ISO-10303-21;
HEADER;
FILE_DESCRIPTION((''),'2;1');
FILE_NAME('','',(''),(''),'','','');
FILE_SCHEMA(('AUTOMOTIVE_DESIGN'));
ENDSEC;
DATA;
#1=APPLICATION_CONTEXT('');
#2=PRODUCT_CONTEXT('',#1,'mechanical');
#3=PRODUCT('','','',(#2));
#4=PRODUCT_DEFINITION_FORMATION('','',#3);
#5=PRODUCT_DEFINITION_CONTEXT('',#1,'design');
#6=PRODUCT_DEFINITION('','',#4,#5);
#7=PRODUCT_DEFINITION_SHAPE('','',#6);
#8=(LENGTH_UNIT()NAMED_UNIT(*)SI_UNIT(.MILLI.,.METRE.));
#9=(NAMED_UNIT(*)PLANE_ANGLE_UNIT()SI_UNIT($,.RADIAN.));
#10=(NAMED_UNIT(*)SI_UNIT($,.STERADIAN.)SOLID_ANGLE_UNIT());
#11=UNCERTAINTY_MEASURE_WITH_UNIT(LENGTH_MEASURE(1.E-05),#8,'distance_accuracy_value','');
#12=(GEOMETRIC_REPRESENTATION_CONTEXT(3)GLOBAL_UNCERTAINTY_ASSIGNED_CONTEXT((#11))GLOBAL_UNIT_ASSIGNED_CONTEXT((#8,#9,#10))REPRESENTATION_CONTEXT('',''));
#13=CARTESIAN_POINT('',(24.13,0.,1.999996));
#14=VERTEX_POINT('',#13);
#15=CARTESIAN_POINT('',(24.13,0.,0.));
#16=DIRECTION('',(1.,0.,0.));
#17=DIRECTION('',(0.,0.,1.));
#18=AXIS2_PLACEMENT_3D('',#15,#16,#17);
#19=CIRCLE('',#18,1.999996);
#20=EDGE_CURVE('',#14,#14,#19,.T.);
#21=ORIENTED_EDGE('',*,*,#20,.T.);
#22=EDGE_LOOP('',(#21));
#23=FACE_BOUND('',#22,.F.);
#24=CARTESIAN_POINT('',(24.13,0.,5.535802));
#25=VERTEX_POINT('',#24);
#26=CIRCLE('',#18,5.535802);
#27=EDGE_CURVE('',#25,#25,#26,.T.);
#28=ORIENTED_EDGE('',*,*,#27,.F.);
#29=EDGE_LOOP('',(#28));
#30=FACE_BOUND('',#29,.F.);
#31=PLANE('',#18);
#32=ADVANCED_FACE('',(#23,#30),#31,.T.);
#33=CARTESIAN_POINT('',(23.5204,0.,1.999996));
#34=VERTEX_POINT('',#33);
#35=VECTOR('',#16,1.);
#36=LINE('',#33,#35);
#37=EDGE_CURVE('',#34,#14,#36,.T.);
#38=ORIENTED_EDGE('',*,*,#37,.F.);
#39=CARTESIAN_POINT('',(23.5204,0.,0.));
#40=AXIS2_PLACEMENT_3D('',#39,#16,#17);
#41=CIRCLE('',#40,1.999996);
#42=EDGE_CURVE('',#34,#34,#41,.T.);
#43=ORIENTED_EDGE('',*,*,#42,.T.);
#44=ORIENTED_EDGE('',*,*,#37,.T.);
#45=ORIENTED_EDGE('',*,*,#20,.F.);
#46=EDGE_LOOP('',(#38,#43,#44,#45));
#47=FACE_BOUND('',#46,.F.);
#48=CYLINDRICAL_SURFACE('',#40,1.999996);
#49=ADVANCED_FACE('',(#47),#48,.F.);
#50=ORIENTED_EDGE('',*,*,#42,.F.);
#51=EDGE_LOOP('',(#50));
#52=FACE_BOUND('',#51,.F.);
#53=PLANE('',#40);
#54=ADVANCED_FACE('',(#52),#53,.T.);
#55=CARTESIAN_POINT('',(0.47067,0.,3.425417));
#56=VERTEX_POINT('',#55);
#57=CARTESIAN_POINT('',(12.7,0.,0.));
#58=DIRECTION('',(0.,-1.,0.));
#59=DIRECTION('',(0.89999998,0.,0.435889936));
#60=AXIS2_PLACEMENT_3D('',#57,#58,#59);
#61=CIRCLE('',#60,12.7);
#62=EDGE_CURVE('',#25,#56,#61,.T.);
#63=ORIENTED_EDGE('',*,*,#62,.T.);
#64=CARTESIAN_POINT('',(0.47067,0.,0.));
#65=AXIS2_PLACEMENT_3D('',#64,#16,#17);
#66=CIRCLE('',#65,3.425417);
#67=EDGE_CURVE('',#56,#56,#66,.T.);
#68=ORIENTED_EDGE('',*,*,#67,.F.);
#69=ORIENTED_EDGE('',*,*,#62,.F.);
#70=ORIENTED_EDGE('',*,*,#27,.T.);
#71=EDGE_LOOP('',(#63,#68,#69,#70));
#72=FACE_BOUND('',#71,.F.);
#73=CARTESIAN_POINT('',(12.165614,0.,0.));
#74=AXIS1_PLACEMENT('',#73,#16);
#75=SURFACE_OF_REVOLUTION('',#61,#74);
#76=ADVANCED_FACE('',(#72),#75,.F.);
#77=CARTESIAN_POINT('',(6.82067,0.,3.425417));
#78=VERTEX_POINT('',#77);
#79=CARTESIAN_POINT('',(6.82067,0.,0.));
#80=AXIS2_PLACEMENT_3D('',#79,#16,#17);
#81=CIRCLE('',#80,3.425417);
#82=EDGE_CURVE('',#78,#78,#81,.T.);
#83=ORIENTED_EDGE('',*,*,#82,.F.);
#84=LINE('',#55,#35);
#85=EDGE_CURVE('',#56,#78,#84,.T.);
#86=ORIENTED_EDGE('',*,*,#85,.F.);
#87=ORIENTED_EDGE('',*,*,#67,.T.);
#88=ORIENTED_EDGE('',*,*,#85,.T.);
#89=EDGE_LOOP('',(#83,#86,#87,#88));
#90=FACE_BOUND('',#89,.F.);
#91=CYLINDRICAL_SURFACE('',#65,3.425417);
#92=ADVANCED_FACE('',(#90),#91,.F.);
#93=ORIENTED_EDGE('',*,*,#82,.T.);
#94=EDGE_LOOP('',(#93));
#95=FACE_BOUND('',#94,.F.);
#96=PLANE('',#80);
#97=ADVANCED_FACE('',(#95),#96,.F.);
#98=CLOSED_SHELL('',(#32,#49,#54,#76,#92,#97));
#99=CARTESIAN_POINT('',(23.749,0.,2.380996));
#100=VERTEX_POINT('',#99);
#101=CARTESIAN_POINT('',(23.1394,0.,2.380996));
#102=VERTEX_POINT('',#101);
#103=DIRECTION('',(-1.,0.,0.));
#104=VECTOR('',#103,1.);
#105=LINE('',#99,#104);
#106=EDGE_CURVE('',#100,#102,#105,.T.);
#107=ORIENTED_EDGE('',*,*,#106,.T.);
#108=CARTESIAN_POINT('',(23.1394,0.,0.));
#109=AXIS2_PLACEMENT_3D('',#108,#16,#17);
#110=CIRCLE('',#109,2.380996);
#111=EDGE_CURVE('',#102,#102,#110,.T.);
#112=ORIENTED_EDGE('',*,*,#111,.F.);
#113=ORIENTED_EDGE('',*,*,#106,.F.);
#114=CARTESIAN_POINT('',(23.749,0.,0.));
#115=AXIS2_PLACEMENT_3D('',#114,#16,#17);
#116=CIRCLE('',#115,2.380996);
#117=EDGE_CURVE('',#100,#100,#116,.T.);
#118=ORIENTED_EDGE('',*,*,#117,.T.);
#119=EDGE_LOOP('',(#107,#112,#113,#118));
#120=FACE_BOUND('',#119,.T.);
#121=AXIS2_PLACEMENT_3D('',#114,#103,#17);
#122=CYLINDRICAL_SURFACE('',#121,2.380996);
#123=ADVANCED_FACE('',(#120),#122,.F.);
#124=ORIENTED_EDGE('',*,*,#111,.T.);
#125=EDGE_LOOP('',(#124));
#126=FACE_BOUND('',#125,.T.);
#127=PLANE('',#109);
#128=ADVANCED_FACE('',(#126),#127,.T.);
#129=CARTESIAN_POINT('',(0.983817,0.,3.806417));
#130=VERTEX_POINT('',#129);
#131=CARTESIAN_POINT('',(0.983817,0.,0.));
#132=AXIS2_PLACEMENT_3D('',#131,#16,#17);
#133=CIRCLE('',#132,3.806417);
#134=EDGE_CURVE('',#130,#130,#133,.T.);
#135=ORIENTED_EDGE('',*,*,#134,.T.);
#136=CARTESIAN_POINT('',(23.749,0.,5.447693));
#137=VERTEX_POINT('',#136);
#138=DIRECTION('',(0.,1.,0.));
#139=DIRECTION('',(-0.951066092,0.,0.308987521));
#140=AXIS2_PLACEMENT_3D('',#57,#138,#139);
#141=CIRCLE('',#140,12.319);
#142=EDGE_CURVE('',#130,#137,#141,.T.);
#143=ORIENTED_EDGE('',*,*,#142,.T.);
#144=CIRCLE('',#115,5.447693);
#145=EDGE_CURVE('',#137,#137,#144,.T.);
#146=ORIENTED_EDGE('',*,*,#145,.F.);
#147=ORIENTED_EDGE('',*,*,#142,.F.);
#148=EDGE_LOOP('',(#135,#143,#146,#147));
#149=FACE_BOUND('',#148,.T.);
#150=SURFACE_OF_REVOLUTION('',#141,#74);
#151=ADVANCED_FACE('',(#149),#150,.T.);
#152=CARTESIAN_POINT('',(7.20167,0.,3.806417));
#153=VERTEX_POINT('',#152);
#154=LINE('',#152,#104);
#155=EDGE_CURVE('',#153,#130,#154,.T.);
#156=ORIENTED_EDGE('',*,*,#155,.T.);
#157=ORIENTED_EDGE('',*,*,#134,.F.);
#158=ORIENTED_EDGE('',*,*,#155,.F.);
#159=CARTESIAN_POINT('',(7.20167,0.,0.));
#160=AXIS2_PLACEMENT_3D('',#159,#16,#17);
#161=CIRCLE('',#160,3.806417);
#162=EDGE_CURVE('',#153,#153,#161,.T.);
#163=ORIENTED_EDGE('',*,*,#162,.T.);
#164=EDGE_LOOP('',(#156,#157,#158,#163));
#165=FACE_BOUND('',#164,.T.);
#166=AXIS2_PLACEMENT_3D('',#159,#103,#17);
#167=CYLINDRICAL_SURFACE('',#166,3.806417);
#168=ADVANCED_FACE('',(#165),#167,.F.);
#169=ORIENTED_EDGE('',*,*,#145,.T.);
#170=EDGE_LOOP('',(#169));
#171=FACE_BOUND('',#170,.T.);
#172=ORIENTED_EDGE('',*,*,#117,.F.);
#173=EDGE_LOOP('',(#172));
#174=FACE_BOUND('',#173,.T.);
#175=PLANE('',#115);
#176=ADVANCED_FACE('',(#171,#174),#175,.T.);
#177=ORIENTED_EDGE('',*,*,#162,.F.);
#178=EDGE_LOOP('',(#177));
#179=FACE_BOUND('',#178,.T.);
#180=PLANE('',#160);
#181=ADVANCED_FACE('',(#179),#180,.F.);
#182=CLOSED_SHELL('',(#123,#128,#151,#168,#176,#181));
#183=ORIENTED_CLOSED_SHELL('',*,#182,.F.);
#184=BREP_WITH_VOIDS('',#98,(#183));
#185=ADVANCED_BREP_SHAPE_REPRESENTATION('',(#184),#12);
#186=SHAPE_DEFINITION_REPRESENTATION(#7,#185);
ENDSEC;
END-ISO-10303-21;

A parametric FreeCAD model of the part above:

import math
import FreeCAD as App
import Part
import Sketcher
Q = App.Units.Quantity

doc = App.newDocument("Part")
body = doc.addObject("PartDesign::Body", "Body")

# Sketch on XZ plane
sketch1 = body.newObject("Sketcher::SketchObject", "Sketch")
sketch1.AttachmentSupport = (doc.getObject("XZ_Plane"), [""])
sketch1.MapMode = "FlatFace"
sketch1.addGeometry([
    Part.LineSegment(App.Vector(23.52, 2, 0), App.Vector(24.13, 2, 0)),  # 0
    Part.LineSegment(App.Vector(24.13, 2, 0), App.Vector(24.13, 5.54, 0)),  # 1
    Part.ArcOfCircle(Part.Circle(App.Vector(12.7, 0, 0), App.Vector(0, 0, 1), 12.7), math.radians(26), math.radians(164)),  # 2
    Part.LineSegment(App.Vector(0.47, 3.43, 0), App.Vector(6.82, 3.43, 0)),  # 3
    Part.LineSegment(App.Vector(6.82, 3.43, 0), App.Vector(6.82, 0, 0)),  # 4
    Part.LineSegment(App.Vector(6.82, 0, 0), App.Vector(7.2, 0, 0)),  # 5
    Part.LineSegment(App.Vector(7.2, 0, 0), App.Vector(7.2, 3.81, 0)),  # 6
    Part.LineSegment(App.Vector(7.2, 3.81, 0), App.Vector(0.98, 3.81, 0)),  # 7
    Part.ArcOfCircle(Part.Circle(App.Vector(12.7, 0, 0), App.Vector(0, 0, 1), 12.32), math.radians(26), math.radians(162)),  # 8
    Part.LineSegment(App.Vector(23.75, 5.45, 0), App.Vector(23.75, 2.38, 0)),  # 9
    Part.LineSegment(App.Vector(23.75, 2.38, 0), App.Vector(23.14, 2.38, 0)),  # 10
    Part.LineSegment(App.Vector(23.14, 2.38, 0), App.Vector(23.14, 0, 0)),  # 11
    Part.LineSegment(App.Vector(23.14, 0, 0), App.Vector(23.52, 0, 0)),  # 12
    Part.LineSegment(App.Vector(23.52, 0, 0), App.Vector(23.52, 2, 0)),  # 13
], False)
sketch1.addConstraint([
    Sketcher.Constraint("Coincident", 0, 2, 1, 1),
    Sketcher.Constraint("Coincident", 1, 2, 2, 1),
    Sketcher.Constraint("Coincident", 2, 2, 3, 1),
    Sketcher.Constraint("Coincident", 3, 2, 4, 1),
    Sketcher.Constraint("Coincident", 4, 2, 5, 1),
    Sketcher.Constraint("Coincident", 5, 2, 6, 1),
    Sketcher.Constraint("Coincident", 6, 2, 7, 1),
    Sketcher.Constraint("Coincident", 7, 2, 8, 2),
    Sketcher.Constraint("Coincident", 8, 1, 9, 1),
    Sketcher.Constraint("Coincident", 9, 2, 10, 1),
    Sketcher.Constraint("Coincident", 10, 2, 11, 1),
    Sketcher.Constraint("Coincident", 11, 2, 12, 1),
    Sketcher.Constraint("Coincident", 12, 2, 13, 1),
    Sketcher.Constraint("Coincident", 13, 2, 0, 1),
    Sketcher.Constraint("Horizontal", 0),
    Sketcher.Constraint("Vertical", 1),
    Sketcher.Constraint("Horizontal", 3),
    Sketcher.Constraint("Vertical", 4),
    Sketcher.Constraint("Horizontal", 5),
    Sketcher.Constraint("Vertical", 6),
    Sketcher.Constraint("Horizontal", 7),
    Sketcher.Constraint("Vertical", 9),
    Sketcher.Constraint("Horizontal", 10),
    Sketcher.Constraint("Vertical", 11),
    Sketcher.Constraint("Horizontal", 12),
    Sketcher.Constraint("Vertical", 13),
    Sketcher.Constraint("Coincident", 8, 3, 2, 3),
    Sketcher.Constraint("PointOnObject", 2, 3, -1),
    Sketcher.Constraint("PointOnObject", 4, 2, -1),
    Sketcher.Constraint("PointOnObject", 11, 2, -1),
    Sketcher.Constraint("Equal", 0, 10),
    Sketcher.Constraint("Equal", 5, 12),
    Sketcher.Constraint("Radius", 2, Q("0.5 in")),
    Sketcher.Constraint("Radius", 8, Q("0.485 in")),
    Sketcher.Constraint("DistanceX", 3, 1, 3, 2, Q("0.25 in")),
    Sketcher.Constraint("DistanceX", -1, 1, 2, 3, Q("0.5 in")),
    Sketcher.Constraint("DistanceX", 0, 1, 0, 2, Q("0.024 in")),
    Sketcher.Constraint("DistanceX", 5, 1, 5, 2, Q("0.015 in")),
    Sketcher.Constraint("DistanceX", -1, 1, 0, 2, Q("0.95 in")),
    Sketcher.Constraint("DistanceY", 3, 2, 6, 2, Q("0.015 in")),
    Sketcher.Constraint("DistanceY", 0, 2, 9, 2, Q("0.015 in")),
    Sketcher.Constraint("DistanceX", 7, 2, 7, 1, 6.217853),
    Sketcher.Constraint("DistanceY", 1, 1, 1, 2, 3.535806),
])
revolution = body.newObject("PartDesign::Revolution", "Revolution")
revolution.Profile = sketch1
revolution.ReferenceAxis = (sketch1, ["H_Axis"])
revolution.Angle = 360

doc.recompute()
